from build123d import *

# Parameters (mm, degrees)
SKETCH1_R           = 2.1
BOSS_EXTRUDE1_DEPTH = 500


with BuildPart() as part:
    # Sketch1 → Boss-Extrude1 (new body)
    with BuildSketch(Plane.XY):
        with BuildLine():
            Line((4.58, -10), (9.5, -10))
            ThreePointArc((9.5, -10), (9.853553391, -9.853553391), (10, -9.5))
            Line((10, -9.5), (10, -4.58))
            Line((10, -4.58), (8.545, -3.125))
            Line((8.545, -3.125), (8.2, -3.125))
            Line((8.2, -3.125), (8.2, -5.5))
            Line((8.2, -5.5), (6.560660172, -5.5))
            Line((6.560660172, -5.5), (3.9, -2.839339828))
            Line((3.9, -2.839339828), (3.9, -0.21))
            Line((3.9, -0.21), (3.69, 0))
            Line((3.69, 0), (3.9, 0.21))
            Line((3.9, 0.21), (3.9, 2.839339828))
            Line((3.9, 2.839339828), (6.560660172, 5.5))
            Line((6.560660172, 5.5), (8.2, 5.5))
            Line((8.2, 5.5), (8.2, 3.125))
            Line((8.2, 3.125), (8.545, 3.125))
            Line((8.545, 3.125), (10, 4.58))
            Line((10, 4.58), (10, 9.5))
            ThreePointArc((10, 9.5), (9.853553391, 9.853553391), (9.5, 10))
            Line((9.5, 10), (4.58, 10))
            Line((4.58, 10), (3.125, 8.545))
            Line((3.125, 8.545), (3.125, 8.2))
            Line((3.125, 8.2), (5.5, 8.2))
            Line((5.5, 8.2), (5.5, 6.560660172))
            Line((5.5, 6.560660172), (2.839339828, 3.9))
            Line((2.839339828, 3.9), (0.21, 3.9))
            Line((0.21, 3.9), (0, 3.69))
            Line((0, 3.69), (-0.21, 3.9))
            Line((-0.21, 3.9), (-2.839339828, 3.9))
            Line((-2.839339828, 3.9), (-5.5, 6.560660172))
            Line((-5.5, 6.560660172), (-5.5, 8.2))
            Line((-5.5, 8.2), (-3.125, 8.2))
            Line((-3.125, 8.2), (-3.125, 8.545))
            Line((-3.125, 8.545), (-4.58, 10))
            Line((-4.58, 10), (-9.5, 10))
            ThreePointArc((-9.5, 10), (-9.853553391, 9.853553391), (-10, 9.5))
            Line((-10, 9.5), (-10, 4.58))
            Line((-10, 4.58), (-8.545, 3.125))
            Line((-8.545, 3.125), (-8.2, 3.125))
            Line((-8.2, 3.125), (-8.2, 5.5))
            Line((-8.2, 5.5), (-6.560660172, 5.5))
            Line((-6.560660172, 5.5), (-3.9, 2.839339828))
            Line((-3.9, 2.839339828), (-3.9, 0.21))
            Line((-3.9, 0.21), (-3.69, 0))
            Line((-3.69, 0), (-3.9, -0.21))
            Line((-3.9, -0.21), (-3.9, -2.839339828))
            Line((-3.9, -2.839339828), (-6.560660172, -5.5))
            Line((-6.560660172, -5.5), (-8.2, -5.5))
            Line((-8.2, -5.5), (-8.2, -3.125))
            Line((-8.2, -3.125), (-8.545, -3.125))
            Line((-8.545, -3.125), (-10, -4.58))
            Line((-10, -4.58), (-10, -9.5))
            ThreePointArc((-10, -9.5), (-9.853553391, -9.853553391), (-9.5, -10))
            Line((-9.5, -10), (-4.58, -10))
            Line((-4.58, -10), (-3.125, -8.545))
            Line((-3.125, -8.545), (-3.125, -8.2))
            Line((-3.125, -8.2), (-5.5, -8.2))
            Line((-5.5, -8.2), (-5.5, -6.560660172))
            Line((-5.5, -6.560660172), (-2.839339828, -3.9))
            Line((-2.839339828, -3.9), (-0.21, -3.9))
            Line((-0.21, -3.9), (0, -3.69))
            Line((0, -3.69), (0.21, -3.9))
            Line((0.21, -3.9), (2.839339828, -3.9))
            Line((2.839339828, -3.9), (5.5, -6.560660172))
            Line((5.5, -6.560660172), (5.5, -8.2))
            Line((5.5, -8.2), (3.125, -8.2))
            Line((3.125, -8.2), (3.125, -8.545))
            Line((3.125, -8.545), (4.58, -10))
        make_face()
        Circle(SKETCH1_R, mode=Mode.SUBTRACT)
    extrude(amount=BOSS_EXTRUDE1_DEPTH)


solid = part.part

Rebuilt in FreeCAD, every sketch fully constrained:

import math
import FreeCAD as App
import Part
import Sketcher

doc = App.newDocument("Part")
params = doc.addObject("Spreadsheet::Sheet", "Params")
for row, (alias, value) in enumerate([
    ("sketch1_diameter", "4.2 mm"),
    ("sketch1_radius", "0.5 mm"),
    ("sketch1_width", "4.92 mm"),
    ("pad1_length", "500 mm"),
], start=1):
    params.set(f"A{row}", alias)
    params.set(f"B{row}", "=" + value)
    params.setAlias(f"B{row}", alias)

body = doc.addObject("PartDesign::Body", "Body")

sketch1 = doc.addObject("Sketcher::SketchObject", "Sketch")
body.addObject(sketch1)
sketch1.AttachmentSupport = (doc.XY_Plane, [""])
sketch1.MapMode = "FlatFace"
sketch1.addGeometry([
    Part.LineSegment(App.Vector(4.58, -10, 0), App.Vector(9.5, -10, 0)),
    Part.ArcOfCircle(Part.Circle(App.Vector(9.5, -9.5, 0), App.Vector(0, 0, 1), 0.5), math.radians(-90), math.radians(0)),
    Part.LineSegment(App.Vector(10, -9.5, 0), App.Vector(10, -4.58, 0)),
    Part.LineSegment(App.Vector(10, -4.58, 0), App.Vector(8.545, -3.125, 0)),
    Part.LineSegment(App.Vector(8.545, -3.125, 0), App.Vector(8.2, -3.125, 0)),
    Part.LineSegment(App.Vector(8.2, -3.125, 0), App.Vector(8.2, -5.5, 0)),
    Part.LineSegment(App.Vector(8.2, -5.5, 0), App.Vector(6.56066, -5.5, 0)),
    Part.LineSegment(App.Vector(6.56066, -5.5, 0), App.Vector(3.9, -2.83934, 0)),
    Part.LineSegment(App.Vector(3.9, -2.83934, 0), App.Vector(3.9, -0.21, 0)),
    Part.LineSegment(App.Vector(3.9, -0.21, 0), App.Vector(3.69, 0, 0)),
    Part.LineSegment(App.Vector(3.69, 0, 0), App.Vector(3.9, 0.21, 0)),
    Part.LineSegment(App.Vector(3.9, 0.21, 0), App.Vector(3.9, 2.83934, 0)),
    Part.LineSegment(App.Vector(3.9, 2.83934, 0), App.Vector(6.56066, 5.5, 0)),
    Part.LineSegment(App.Vector(6.56066, 5.5, 0), App.Vector(8.2, 5.5, 0)),
    Part.LineSegment(App.Vector(8.2, 5.5, 0), App.Vector(8.2, 3.125, 0)),
    Part.LineSegment(App.Vector(8.2, 3.125, 0), App.Vector(8.545, 3.125, 0)),
    Part.LineSegment(App.Vector(8.545, 3.125, 0), App.Vector(10, 4.58, 0)),
    Part.LineSegment(App.Vector(10, 4.58, 0), App.Vector(10, 9.5, 0)),
    Part.ArcOfCircle(Part.Circle(App.Vector(9.5, 9.5, 0), App.Vector(0, 0, 1), 0.5), math.radians(0), math.radians(90)),
    Part.LineSegment(App.Vector(9.5, 10, 0), App.Vector(4.58, 10, 0)),
    Part.LineSegment(App.Vector(4.58, 10, 0), App.Vector(3.125, 8.545, 0)),
    Part.LineSegment(App.Vector(3.125, 8.545, 0), App.Vector(3.125, 8.2, 0)),
    Part.LineSegment(App.Vector(3.125, 8.2, 0), App.Vector(5.5, 8.2, 0)),
    Part.LineSegment(App.Vector(5.5, 8.2, 0), App.Vector(5.5, 6.56066, 0)),
    Part.LineSegment(App.Vector(5.5, 6.56066, 0), App.Vector(2.83934, 3.9, 0)),
    Part.LineSegment(App.Vector(2.83934, 3.9, 0), App.Vector(0.21, 3.9, 0)),
    Part.LineSegment(App.Vector(0.21, 3.9, 0), App.Vector(0, 3.69, 0)),
    Part.LineSegment(App.Vector(0, 3.69, 0), App.Vector(-0.21, 3.9, 0)),
    Part.LineSegment(App.Vector(-0.21, 3.9, 0), App.Vector(-2.83934, 3.9, 0)),
    Part.LineSegment(App.Vector(-2.83934, 3.9, 0), App.Vector(-5.5, 6.56066, 0)),
    Part.LineSegment(App.Vector(-5.5, 6.56066, 0), App.Vector(-5.5, 8.2, 0)),
    Part.LineSegment(App.Vector(-5.5, 8.2, 0), App.Vector(-3.125, 8.2, 0)),
    Part.LineSegment(App.Vector(-3.125, 8.2, 0), App.Vector(-3.125, 8.545, 0)),
    Part.LineSegment(App.Vector(-3.125, 8.545, 0), App.Vector(-4.58, 10, 0)),
    Part.LineSegment(App.Vector(-4.58, 10, 0), App.Vector(-9.5, 10, 0)),
    Part.ArcOfCircle(Part.Circle(App.Vector(-9.5, 9.5, 0), App.Vector(0, 0, 1), 0.5), math.radians(90), math.radians(180)),
    Part.LineSegment(App.Vector(-10, 9.5, 0), App.Vector(-10, 4.58, 0)),
    Part.LineSegment(App.Vector(-10, 4.58, 0), App.Vector(-8.545, 3.125, 0)),
    Part.LineSegment(App.Vector(-8.545, 3.125, 0), App.Vector(-8.2, 3.125, 0)),
    Part.LineSegment(App.Vector(-8.2, 3.125, 0), App.Vector(-8.2, 5.5, 0)),
    Part.LineSegment(App.Vector(-8.2, 5.5, 0), App.Vector(-6.56066, 5.5, 0)),
    Part.LineSegment(App.Vector(-6.56066, 5.5, 0), App.Vector(-3.9, 2.83934, 0)),
    Part.LineSegment(App.Vector(-3.9, 2.83934, 0), App.Vector(-3.9, 0.21, 0)),
    Part.LineSegment(App.Vector(-3.9, 0.21, 0), App.Vector(-3.69, 0, 0)),
    Part.LineSegment(App.Vector(-3.69, 0, 0), App.Vector(-3.9, -0.21, 0)),
    Part.LineSegment(App.Vector(-3.9, -0.21, 0), App.Vector(-3.9, -2.83934, 0)),
    Part.LineSegment(App.Vector(-3.9, -2.83934, 0), App.Vector(-6.56066, -5.5, 0)),
    Part.LineSegment(App.Vector(-6.56066, -5.5, 0), App.Vector(-8.2, -5.5, 0)),
    Part.LineSegment(App.Vector(-8.2, -5.5, 0), App.Vector(-8.2, -3.125, 0)),
    Part.LineSegment(App.Vector(-8.2, -3.125, 0), App.Vector(-8.545, -3.125, 0)),
    Part.LineSegment(App.Vector(-8.545, -3.125, 0), App.Vector(-10, -4.58, 0)),
    Part.LineSegment(App.Vector(-10, -4.58, 0), App.Vector(-10, -9.5, 0)),
    Part.ArcOfCircle(Part.Circle(App.Vector(-9.5, -9.5, 0), App.Vector(0, 0, 1), 0.5), math.radians(180), math.radians(270)),
    Part.LineSegment(App.Vector(-9.5, -10, 0), App.Vector(-4.58, -10, 0)),
    Part.LineSegment(App.Vector(-4.58, -10, 0), App.Vector(-3.125, -8.545, 0)),
    Part.LineSegment(App.Vector(-3.125, -8.545, 0), App.Vector(-3.125, -8.2, 0)),
    Part.LineSegment(App.Vector(-3.125, -8.2, 0), App.Vector(-5.5, -8.2, 0)),
    Part.LineSegment(App.Vector(-5.5, -8.2, 0), App.Vector(-5.5, -6.56066, 0)),
    Part.LineSegment(App.Vector(-5.5, -6.56066, 0), App.Vector(-2.83934, -3.9, 0)),
    Part.LineSegment(App.Vector(-2.83934, -3.9, 0), App.Vector(-0.21, -3.9, 0)),
    Part.LineSegment(App.Vector(-0.21, -3.9, 0), App.Vector(0, -3.69, 0)),
    Part.LineSegment(App.Vector(0, -3.69, 0), App.Vector(0.21, -3.9, 0)),
    Part.LineSegment(App.Vector(0.21, -3.9, 0), App.Vector(2.83934, -3.9, 0)),
    Part.LineSegment(App.Vector(2.83934, -3.9, 0), App.Vector(5.5, -6.56066, 0)),
    Part.LineSegment(App.Vector(5.5, -6.56066, 0), App.Vector(5.5, -8.2, 0)),
    Part.LineSegment(App.Vector(5.5, -8.2, 0), App.Vector(3.125, -8.2, 0)),
    Part.LineSegment(App.Vector(3.125, -8.2, 0), App.Vector(3.125, -8.545, 0)),
    Part.LineSegment(App.Vector(3.125, -8.545, 0), App.Vector(4.58, -10, 0)),
    Part.Circle(App.Vector(0, 0, 0), App.Vector(0, 0, 1), 2.1),
], False)
sketch1.addConstraint([
    Sketcher.Constraint("Tangent", 0, 2, 1, 1),
    Sketcher.Constraint("Tangent", 1, 2, 2, 1),
    Sketcher.Constraint("Coincident", 2, 2, 3, 1),
    Sketcher.Constraint("Coincident", 3, 2, 4, 1),
    Sketcher.Constraint("Coincident", 4, 2, 5, 1),
    Sketcher.Constraint("Coincident", 5, 2, 6, 1),
    Sketcher.Constraint("Coincident", 6, 2, 7, 1),
    Sketcher.Constraint("Coincident", 7, 2, 8, 1),
    Sketcher.Constraint("Coincident", 8, 2, 9, 1),
    Sketcher.Constraint("Coincident", 9, 2, 10, 1),
    Sketcher.Constraint("Coincident", 10, 2, 11, 1),
    Sketcher.Constraint("Coincident", 11, 2, 12, 1),
    Sketcher.Constraint("Coincident", 12, 2, 13, 1),
    Sketcher.Constraint("Coincident", 13, 2, 14, 1),
    Sketcher.Constraint("Coincident", 14, 2, 15, 1),
    Sketcher.Constraint("Coincident", 15, 2, 16, 1),
    Sketcher.Constraint("Coincident", 16, 2, 17, 1),
    Sketcher.Constraint("Tangent", 17, 2, 18, 1),
    Sketcher.Constraint("Tangent", 18, 2, 19, 1),
    Sketcher.Constraint("Coincident", 19, 2, 20, 1),
    Sketcher.Constraint("Coincident", 20, 2, 21, 1),
    Sketcher.Constraint("Coincident", 21, 2, 22, 1),
    Sketcher.Constraint("Coincident", 22, 2, 23, 1),
    Sketcher.Constraint("Coincident", 23, 2, 24, 1),
    Sketcher.Constraint("Coincident", 24, 2, 25, 1),
    Sketcher.Constraint("Coincident", 25, 2, 26, 1),
    Sketcher.Constraint("Coincident", 26, 2, 27, 1),
    Sketcher.Constraint("Coincident", 27, 2, 28, 1),
    Sketcher.Constraint("Coincident", 28, 2, 29, 1),
    Sketcher.Constraint("Coincident", 29, 2, 30, 1),
    Sketcher.Constraint("Coincident", 30, 2, 31, 1),
    Sketcher.Constraint("Coincident", 31, 2, 32, 1),
    Sketcher.Constraint("Coincident", 32, 2, 33, 1),
    Sketcher.Constraint("Coincident", 33, 2, 34, 1),
    Sketcher.Constraint("Tangent", 34, 2, 35, 1),
    Sketcher.Constraint("Tangent", 35, 2, 36, 1),
    Sketcher.Constraint("Coincident", 36, 2, 37, 1),
    Sketcher.Constraint("Coincident", 37, 2, 38, 1),
    Sketcher.Constraint("Coincident", 38, 2, 39, 1),
    Sketcher.Constraint("Coincident", 39, 2, 40, 1),
    Sketcher.Constraint("Coincident", 40, 2, 41, 1),
    Sketcher.Constraint("Coincident", 41, 2, 42, 1),
    Sketcher.Constraint("Coincident", 42, 2, 43, 1),
    Sketcher.Constraint("Coincident", 43, 2, 44, 1),
    Sketcher.Constraint("Coincident", 44, 2, 45, 1),
    Sketcher.Constraint("Coincident", 45, 2, 46, 1),
    Sketcher.Constraint("Coincident", 46, 2, 47, 1),
    Sketcher.Constraint("Coincident", 47, 2, 48, 1),
    Sketcher.Constraint("Coincident", 48, 2, 49, 1),
    Sketcher.Constraint("Coincident", 49, 2, 50, 1),
    Sketcher.Constraint("Coincident", 50, 2, 51, 1),
    Sketcher.Constraint("Tangent", 51, 2, 52, 1),
    Sketcher.Constraint("Tangent", 52, 2, 53, 1),
    Sketcher.Constraint("Coincident", 53, 2, 54, 1),
    Sketcher.Constraint("Coincident", 54, 2, 55, 1),
    Sketcher.Constraint("Coincident", 55, 2, 56, 1),
    Sketcher.Constraint("Coincident", 56, 2, 57, 1),
    Sketcher.Constraint("Coincident", 57, 2, 58, 1),
    Sketcher.Constraint("Coincident", 58, 2, 59, 1),
    Sketcher.Constraint("Coincident", 59, 2, 60, 1),
    Sketcher.Constraint("Coincident", 60, 2, 61, 1),
    Sketcher.Constraint("Coincident", 61, 2, 62, 1),
    Sketcher.Constraint("Coincident", 62, 2, 63, 1),
    Sketcher.Constraint("Coincident", 63, 2, 64, 1),
    Sketcher.Constraint("Coincident", 64, 2, 65, 1),
    Sketcher.Constraint("Coincident", 65, 2, 66, 1),
    Sketcher.Constraint("Coincident", 66, 2, 67, 1),
    Sketcher.Constraint("Coincident", 67, 2, 0, 1),
    Sketcher.Constraint("Horizontal", 0),
    Sketcher.Constraint("Vertical", 2),
    Sketcher.Constraint("Horizontal", 4),
    Sketcher.Constraint("Vertical", 5),
    Sketcher.Constraint("Horizontal", 6),
    Sketcher.Constraint("Vertical", 8),
    Sketcher.Constraint("Vertical", 11),
    Sketcher.Constraint("Horizontal", 13),
    Sketcher.Constraint("Vertical", 14),
    Sketcher.Constraint("Horizontal", 15),
    Sketcher.Constraint("Vertical", 17),
    Sketcher.Constraint("Horizontal", 19),
    Sketcher.Constraint("Vertical", 21),
    Sketcher.Constraint("Horizontal", 22),
    Sketcher.Constraint("Vertical", 23),
    Sketcher.Constraint("Horizontal", 25),
    Sketcher.Constraint("Horizontal", 28),
    Sketcher.Constraint("Vertical", 30),
    Sketcher.Constraint("Horizontal", 31),
    Sketcher.Constraint("Vertical", 32),
    Sketcher.Constraint("Horizontal", 34),
    Sketcher.Constraint("Vertical", 36),
    Sketcher.Constraint("Horizontal", 38),
    Sketcher.Constraint("Vertical", 39),
    Sketcher.Constraint("Horizontal", 40),
    Sketcher.Constraint("Vertical", 42),
    Sketcher.Constraint("Vertical", 45),
    Sketcher.Constraint("Horizontal", 47),
    Sketcher.Constraint("Vertical", 48),
    Sketcher.Constraint("Horizontal", 49),
    Sketcher.Constraint("Vertical", 51),
    Sketcher.Constraint("Horizontal", 53),
    Sketcher.Constraint("Vertical", 55),
    Sketcher.Constraint("Horizontal", 56),
    Sketcher.Constraint("Vertical", 57),
    Sketcher.Constraint("Horizontal", 59),
    Sketcher.Constraint("Horizontal", 62),
    Sketcher.Constraint("Vertical", 64),
    Sketcher.Constraint("Horizontal", 65),
    Sketcher.Constraint("Vertical", 66),
    Sketcher.Constraint("Coincident", 68, 3, -1, 1),
    Sketcher.Constraint("Equal", 1, 18),
    Sketcher.Constraint("Equal", 18, 35),
    Sketcher.Constraint("Equal", 35, 52),
    Sketcher.Constraint("Symmetric", 1, 3, 35, 3, -1, 1),
    Sketcher.Constraint("Symmetric", 18, 3, 52, 3, -1, 1),
    Sketcher.Constraint("Symmetric", 3, 2, 37, 2, -1, 1),
    Sketcher.Constraint("Symmetric", 5, 2, 39, 2, -1, 1),
    Sketcher.Constraint("Symmetric", 7, 2, 41, 2, -1, 1),
    Sketcher.Constraint("Symmetric", 9, 2, 43, 2, -1, 1),
    Sketcher.Constraint("Symmetric", 10, 2, 44, 2, -1, 1),
    Sketcher.Constraint("Symmetric", 12, 2, 46, 2, -1, 1),
    Sketcher.Constraint("Symmetric", 14, 2, 48, 2, -1, 1),
    Sketcher.Constraint("Symmetric", 20, 2, 54, 2, -1, 1),
    Sketcher.Constraint("Symmetric", 22, 2, 56, 2, -1, 1),
    Sketcher.Constraint("Symmetric", 24, 2, 58, 2, -1, 1),
    Sketcher.Constraint("Symmetric", 26, 2, 60, 2, -1, 1),
    Sketcher.Constraint("Symmetric", 27, 2, 61, 2, -1, 1),
    Sketcher.Constraint("Symmetric", 29, 2, 63, 2, -1, 1),
    Sketcher.Constraint("Symmetric", 31, 2, 65, 2, -1, 1),
    Sketcher.Constraint("Symmetric", 18, 3, 35, 3, -2),
    Sketcher.Constraint("Symmetric", 25, 2, 27, 2, -2),
    Sketcher.Constraint("Symmetric", 23, 2, 29, 2, -2),
    Sketcher.Constraint("Symmetric", 21, 2, 31, 2, -2),
    Sketcher.Constraint("Symmetric", 15, 2, 37, 2, -2),
    Sketcher.Constraint("Symmetric", 13, 2, 39, 2, -2),
    Sketcher.Constraint("Symmetric", 11, 2, 41, 2, -2),
    Sketcher.Constraint("PointOnObject", 9, 2, -1),
    Sketcher.Constraint("PointOnObject", 26, 2, -2),
    Sketcher.Constraint("Parallel", 3, 7),
    Sketcher.Constraint("Parallel", 7, 9),
    Sketcher.Constraint("Perpendicular", 9, 10),
    Sketcher.Constraint("Parallel", 10, 12),
    Sketcher.Constraint("Parallel", 12, 16),
    Sketcher.Constraint("Parallel", 16, 20),
    Sketcher.Constraint("Parallel", 20, 24),
    Sketcher.Constraint("Parallel", 24, 26),
    Sketcher.Constraint("Perpendicular", 26, 27),
    Sketcher.Constraint("Parallel", 27, 29),
    Sketcher.Constraint("Parallel", 29, 33),
    Sketcher.Constraint("Parallel", 33, 37),
    Sketcher.Constraint("Parallel", 37, 41),
    Sketcher.Constraint("Parallel", 41, 43),
    Sketcher.Constraint("Parallel", 44, 46),
    Sketcher.Constraint("Parallel", 46, 50),
    Sketcher.Constraint("Parallel", 50, 54),
    Sketcher.Constraint("Parallel", 54, 58),
    Sketcher.Constraint("Parallel", 58, 60),
    Sketcher.Constraint("Parallel", 61, 63),
    Sketcher.Constraint("Parallel", 63, 67),
    Sketcher.Constraint("Horizontal", 20, 2, 32, 2),
    Sketcher.Constraint("Horizontal", 2, 2, 50, 2),
    Sketcher.Constraint("Horizontal", 54, 2, 66, 2),
    Sketcher.Constraint("Equal", 53, 2),
    Sketcher.Constraint("Equal", 65, 5),
    Sketcher.Constraint("Equal", 62, 8),
    Sketcher.Constraint("Equal", 49, 21),
    Sketcher.Constraint("Equal", 47, 23),
    Sketcher.Constraint("Equal", 16, 20),
    Sketcher.Constraint("Equal", 12, 24),
    Sketcher.Constraint("Equal", 10, 26),
    Sketcher.Constraint("Diameter", 68, 4.2),
    Sketcher.Constraint("Radius", 1, 0.5),
    Sketcher.Constraint("DistanceY", 0, 2, -1, 1, 10.0),
    Sketcher.Constraint("DistanceX", 0, 1, 0, 2, 4.92),
    Sketcher.Constraint("DistanceX", -1, 1, 4, 2, 8.2),
    Sketcher.Constraint("DistanceY", 5, 2, -1, 1, 5.5),
    Sketcher.Constraint("DistanceX", -1, 1, 7, 2, 3.9),
    Sketcher.Constraint("DistanceX", 4, 2, 4, 1, 0.345),
    Sketcher.Constraint("DistanceY", 8, 2, -1, 1, 0.21),
    Sketcher.Constraint("DistanceX", 6, 2, 6, 1, 1.63934),
])
sketch1.setExpression("Constraints[169]", "Params.sketch1_diameter")
sketch1.setExpression("Constraints[170]", "Params.sketch1_radius")
sketch1.setExpression("Constraints[172]", "Params.sketch1_width")
pad1 = doc.addObject("PartDesign::Pad", "Pad")
body.addObject(pad1)
pad1.Profile = sketch1
pad1.setExpression("Length", "Params.pad1_length")

doc.recompute()
